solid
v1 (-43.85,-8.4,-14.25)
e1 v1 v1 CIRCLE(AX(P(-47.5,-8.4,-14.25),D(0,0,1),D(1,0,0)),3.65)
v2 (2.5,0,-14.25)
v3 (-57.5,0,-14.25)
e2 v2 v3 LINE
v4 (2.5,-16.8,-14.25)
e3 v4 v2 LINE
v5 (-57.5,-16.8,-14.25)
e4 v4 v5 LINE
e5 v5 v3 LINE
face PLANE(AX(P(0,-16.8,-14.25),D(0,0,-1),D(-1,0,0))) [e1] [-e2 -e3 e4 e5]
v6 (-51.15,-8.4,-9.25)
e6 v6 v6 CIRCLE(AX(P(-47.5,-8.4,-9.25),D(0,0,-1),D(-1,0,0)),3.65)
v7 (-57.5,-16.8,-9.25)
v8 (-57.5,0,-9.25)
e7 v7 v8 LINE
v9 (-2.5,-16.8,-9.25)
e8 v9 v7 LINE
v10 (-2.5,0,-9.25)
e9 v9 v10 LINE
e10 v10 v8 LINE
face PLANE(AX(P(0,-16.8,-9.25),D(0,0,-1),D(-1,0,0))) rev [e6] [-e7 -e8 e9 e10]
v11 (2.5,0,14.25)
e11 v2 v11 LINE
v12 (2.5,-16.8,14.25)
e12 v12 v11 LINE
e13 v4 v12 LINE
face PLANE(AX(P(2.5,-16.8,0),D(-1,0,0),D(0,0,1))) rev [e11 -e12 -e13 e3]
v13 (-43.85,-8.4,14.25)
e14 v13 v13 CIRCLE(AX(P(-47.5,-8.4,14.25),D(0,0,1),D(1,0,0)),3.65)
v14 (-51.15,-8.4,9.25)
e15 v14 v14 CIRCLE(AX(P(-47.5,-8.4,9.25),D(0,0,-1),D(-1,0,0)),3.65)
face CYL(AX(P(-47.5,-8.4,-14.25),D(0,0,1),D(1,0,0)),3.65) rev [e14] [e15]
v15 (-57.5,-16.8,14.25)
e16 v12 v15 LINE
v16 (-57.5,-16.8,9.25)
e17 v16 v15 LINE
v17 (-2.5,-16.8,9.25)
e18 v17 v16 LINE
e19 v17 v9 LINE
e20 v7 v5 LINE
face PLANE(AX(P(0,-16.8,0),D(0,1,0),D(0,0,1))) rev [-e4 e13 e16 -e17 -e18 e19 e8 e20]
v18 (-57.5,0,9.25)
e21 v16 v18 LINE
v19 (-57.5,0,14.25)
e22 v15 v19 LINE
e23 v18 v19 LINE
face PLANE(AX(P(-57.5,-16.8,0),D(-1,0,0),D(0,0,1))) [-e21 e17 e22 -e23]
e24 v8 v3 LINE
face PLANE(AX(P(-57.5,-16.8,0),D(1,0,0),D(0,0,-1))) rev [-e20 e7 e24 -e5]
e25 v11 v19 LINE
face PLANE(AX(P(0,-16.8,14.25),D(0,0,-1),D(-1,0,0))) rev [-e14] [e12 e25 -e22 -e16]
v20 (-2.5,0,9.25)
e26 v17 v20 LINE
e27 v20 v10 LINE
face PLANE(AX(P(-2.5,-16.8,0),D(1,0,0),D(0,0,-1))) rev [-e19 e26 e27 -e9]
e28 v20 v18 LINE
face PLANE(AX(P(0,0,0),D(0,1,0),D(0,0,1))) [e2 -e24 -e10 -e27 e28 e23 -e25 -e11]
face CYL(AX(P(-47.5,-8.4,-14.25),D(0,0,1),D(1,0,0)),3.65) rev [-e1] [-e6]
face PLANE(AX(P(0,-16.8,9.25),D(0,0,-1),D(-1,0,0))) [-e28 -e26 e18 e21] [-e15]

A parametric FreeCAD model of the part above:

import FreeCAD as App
import Part
import Sketcher
from FreeCAD import Vector

doc = App.newDocument("Part")
body = doc.addObject("PartDesign::Body", "Body")

# Sketch on XZ plane
sketch1 = body.newObject("Sketcher::SketchObject", "Sketch")
sketch1.AttachmentSupport = (doc.getObject("XZ_Plane"), [""])
sketch1.MapMode = "FlatFace"
sketch1.addGeometry(Part.LineSegment(Vector(-2, 9, 0), Vector(-58, 9, 0)), False)
sketch1.addGeometry(Part.LineSegment(Vector(-58, 9, 0), Vector(-58, 14, 0)), False)
sketch1.addGeometry(Part.LineSegment(Vector(-58, 14, 0), Vector(2, 14, 0)), False)
sketch1.addGeometry(Part.LineSegment(Vector(2, 14, 0), Vector(2, -14, 0)), False)
sketch1.addGeometry(Part.LineSegment(Vector(2, -14, 0), Vector(-58, -14, 0)), False)
sketch1.addGeometry(Part.LineSegment(Vector(-58, -14, 0), Vector(-58, -9, 0)), False)
sketch1.addGeometry(Part.LineSegment(Vector(-58, -9, 0), Vector(-2, -9, 0)), False)
sketch1.addGeometry(Part.LineSegment(Vector(-2, -9, 0), Vector(-2, 9, 0)), False)
sketch1.addConstraint(Sketcher.Constraint("Coincident", 0, 2, 1, 1))
sketch1.addConstraint(Sketcher.Constraint("Coincident", 1, 2, 2, 1))
sketch1.addConstraint(Sketcher.Constraint("Coincident", 2, 2, 3, 1))
sketch1.addConstraint(Sketcher.Constraint("Coincident", 3, 2, 4, 1))
sketch1.addConstraint(Sketcher.Constraint("Coincident", 4, 2, 5, 1))
sketch1.addConstraint(Sketcher.Constraint("Coincident", 5, 2, 6, 1))
sketch1.addConstraint(Sketcher.Constraint("Coincident", 6, 2, 7, 1))
sketch1.addConstraint(Sketcher.Constraint("Coincident", 7, 2, 0, 1))
sketch1.addConstraint(Sketcher.Constraint("Horizontal", 0))
sketch1.addConstraint(Sketcher.Constraint("Vertical", 1))
sketch1.addConstraint(Sketcher.Constraint("Horizontal", 2))
sketch1.addConstraint(Sketcher.Constraint("Vertical", 3))
sketch1.addConstraint(Sketcher.Constraint("Horizontal", 4))
sketch1.addConstraint(Sketcher.Constraint("Vertical", 5))
sketch1.addConstraint(Sketcher.Constraint("Horizontal", 6))
sketch1.addConstraint(Sketcher.Constraint("Vertical", 7))
sketch1.addConstraint(Sketcher.Constraint("Symmetric", 1, 2, 4, 2, -1))
sketch1.addConstraint(Sketcher.Constraint("Equal", 1, 5))
sketch1.addConstraint(Sketcher.Constraint("DistanceX", 0, 2, 0, 1, 55.0))
sketch1.addConstraint(Sketcher.Constraint("DistanceX", 2, 1, 2, 2, 60.0))
sketch1.addConstraint(Sketcher.Constraint("DistanceY", 1, 1, 1, 2, 5.0))
sketch1.addConstraint(Sketcher.Constraint("DistanceY", 3, 2, 3, 1, 28.5))
sketch1.addConstraint(Sketcher.Constraint("DistanceX", 0, 2, -1, 1, 57.5))
pad1 = body.newObject("PartDesign::Pad", "Pad")
pad1.Profile = sketch1
pad1.Length = 16.8

# Sketch on XY plane
sketch2 = body.newObject("Sketcher::SketchObject", "Sketch001")
sketch2.AttachmentSupport = (doc.getObject("XY_Plane"), [""])
sketch2.MapMode = "FlatFace"
sketch2.AttachmentOffset = App.Placement(Vector(0, 0, 14.25), App.Rotation())
sketch2.addGeometry(Part.Circle(Vector(-47.5, -8.4, 0), Vector(0, 0, 1), 3.6), False)
sketch2.addConstraint(Sketcher.Constraint("Diameter", 0, 7.3))
sketch2.addConstraint(Sketcher.Constraint("DistanceX", 0, 3, -1, 1, 47.5))
sketch2.addConstraint(Sketcher.Constraint("DistanceY", 0, 3, -1, 1, 8.4))
pocket1 = body.newObject("PartDesign::Pocket", "Pocket")
pocket1.Profile = sketch2
pocket1.Length = 28.5

doc.recompute()
